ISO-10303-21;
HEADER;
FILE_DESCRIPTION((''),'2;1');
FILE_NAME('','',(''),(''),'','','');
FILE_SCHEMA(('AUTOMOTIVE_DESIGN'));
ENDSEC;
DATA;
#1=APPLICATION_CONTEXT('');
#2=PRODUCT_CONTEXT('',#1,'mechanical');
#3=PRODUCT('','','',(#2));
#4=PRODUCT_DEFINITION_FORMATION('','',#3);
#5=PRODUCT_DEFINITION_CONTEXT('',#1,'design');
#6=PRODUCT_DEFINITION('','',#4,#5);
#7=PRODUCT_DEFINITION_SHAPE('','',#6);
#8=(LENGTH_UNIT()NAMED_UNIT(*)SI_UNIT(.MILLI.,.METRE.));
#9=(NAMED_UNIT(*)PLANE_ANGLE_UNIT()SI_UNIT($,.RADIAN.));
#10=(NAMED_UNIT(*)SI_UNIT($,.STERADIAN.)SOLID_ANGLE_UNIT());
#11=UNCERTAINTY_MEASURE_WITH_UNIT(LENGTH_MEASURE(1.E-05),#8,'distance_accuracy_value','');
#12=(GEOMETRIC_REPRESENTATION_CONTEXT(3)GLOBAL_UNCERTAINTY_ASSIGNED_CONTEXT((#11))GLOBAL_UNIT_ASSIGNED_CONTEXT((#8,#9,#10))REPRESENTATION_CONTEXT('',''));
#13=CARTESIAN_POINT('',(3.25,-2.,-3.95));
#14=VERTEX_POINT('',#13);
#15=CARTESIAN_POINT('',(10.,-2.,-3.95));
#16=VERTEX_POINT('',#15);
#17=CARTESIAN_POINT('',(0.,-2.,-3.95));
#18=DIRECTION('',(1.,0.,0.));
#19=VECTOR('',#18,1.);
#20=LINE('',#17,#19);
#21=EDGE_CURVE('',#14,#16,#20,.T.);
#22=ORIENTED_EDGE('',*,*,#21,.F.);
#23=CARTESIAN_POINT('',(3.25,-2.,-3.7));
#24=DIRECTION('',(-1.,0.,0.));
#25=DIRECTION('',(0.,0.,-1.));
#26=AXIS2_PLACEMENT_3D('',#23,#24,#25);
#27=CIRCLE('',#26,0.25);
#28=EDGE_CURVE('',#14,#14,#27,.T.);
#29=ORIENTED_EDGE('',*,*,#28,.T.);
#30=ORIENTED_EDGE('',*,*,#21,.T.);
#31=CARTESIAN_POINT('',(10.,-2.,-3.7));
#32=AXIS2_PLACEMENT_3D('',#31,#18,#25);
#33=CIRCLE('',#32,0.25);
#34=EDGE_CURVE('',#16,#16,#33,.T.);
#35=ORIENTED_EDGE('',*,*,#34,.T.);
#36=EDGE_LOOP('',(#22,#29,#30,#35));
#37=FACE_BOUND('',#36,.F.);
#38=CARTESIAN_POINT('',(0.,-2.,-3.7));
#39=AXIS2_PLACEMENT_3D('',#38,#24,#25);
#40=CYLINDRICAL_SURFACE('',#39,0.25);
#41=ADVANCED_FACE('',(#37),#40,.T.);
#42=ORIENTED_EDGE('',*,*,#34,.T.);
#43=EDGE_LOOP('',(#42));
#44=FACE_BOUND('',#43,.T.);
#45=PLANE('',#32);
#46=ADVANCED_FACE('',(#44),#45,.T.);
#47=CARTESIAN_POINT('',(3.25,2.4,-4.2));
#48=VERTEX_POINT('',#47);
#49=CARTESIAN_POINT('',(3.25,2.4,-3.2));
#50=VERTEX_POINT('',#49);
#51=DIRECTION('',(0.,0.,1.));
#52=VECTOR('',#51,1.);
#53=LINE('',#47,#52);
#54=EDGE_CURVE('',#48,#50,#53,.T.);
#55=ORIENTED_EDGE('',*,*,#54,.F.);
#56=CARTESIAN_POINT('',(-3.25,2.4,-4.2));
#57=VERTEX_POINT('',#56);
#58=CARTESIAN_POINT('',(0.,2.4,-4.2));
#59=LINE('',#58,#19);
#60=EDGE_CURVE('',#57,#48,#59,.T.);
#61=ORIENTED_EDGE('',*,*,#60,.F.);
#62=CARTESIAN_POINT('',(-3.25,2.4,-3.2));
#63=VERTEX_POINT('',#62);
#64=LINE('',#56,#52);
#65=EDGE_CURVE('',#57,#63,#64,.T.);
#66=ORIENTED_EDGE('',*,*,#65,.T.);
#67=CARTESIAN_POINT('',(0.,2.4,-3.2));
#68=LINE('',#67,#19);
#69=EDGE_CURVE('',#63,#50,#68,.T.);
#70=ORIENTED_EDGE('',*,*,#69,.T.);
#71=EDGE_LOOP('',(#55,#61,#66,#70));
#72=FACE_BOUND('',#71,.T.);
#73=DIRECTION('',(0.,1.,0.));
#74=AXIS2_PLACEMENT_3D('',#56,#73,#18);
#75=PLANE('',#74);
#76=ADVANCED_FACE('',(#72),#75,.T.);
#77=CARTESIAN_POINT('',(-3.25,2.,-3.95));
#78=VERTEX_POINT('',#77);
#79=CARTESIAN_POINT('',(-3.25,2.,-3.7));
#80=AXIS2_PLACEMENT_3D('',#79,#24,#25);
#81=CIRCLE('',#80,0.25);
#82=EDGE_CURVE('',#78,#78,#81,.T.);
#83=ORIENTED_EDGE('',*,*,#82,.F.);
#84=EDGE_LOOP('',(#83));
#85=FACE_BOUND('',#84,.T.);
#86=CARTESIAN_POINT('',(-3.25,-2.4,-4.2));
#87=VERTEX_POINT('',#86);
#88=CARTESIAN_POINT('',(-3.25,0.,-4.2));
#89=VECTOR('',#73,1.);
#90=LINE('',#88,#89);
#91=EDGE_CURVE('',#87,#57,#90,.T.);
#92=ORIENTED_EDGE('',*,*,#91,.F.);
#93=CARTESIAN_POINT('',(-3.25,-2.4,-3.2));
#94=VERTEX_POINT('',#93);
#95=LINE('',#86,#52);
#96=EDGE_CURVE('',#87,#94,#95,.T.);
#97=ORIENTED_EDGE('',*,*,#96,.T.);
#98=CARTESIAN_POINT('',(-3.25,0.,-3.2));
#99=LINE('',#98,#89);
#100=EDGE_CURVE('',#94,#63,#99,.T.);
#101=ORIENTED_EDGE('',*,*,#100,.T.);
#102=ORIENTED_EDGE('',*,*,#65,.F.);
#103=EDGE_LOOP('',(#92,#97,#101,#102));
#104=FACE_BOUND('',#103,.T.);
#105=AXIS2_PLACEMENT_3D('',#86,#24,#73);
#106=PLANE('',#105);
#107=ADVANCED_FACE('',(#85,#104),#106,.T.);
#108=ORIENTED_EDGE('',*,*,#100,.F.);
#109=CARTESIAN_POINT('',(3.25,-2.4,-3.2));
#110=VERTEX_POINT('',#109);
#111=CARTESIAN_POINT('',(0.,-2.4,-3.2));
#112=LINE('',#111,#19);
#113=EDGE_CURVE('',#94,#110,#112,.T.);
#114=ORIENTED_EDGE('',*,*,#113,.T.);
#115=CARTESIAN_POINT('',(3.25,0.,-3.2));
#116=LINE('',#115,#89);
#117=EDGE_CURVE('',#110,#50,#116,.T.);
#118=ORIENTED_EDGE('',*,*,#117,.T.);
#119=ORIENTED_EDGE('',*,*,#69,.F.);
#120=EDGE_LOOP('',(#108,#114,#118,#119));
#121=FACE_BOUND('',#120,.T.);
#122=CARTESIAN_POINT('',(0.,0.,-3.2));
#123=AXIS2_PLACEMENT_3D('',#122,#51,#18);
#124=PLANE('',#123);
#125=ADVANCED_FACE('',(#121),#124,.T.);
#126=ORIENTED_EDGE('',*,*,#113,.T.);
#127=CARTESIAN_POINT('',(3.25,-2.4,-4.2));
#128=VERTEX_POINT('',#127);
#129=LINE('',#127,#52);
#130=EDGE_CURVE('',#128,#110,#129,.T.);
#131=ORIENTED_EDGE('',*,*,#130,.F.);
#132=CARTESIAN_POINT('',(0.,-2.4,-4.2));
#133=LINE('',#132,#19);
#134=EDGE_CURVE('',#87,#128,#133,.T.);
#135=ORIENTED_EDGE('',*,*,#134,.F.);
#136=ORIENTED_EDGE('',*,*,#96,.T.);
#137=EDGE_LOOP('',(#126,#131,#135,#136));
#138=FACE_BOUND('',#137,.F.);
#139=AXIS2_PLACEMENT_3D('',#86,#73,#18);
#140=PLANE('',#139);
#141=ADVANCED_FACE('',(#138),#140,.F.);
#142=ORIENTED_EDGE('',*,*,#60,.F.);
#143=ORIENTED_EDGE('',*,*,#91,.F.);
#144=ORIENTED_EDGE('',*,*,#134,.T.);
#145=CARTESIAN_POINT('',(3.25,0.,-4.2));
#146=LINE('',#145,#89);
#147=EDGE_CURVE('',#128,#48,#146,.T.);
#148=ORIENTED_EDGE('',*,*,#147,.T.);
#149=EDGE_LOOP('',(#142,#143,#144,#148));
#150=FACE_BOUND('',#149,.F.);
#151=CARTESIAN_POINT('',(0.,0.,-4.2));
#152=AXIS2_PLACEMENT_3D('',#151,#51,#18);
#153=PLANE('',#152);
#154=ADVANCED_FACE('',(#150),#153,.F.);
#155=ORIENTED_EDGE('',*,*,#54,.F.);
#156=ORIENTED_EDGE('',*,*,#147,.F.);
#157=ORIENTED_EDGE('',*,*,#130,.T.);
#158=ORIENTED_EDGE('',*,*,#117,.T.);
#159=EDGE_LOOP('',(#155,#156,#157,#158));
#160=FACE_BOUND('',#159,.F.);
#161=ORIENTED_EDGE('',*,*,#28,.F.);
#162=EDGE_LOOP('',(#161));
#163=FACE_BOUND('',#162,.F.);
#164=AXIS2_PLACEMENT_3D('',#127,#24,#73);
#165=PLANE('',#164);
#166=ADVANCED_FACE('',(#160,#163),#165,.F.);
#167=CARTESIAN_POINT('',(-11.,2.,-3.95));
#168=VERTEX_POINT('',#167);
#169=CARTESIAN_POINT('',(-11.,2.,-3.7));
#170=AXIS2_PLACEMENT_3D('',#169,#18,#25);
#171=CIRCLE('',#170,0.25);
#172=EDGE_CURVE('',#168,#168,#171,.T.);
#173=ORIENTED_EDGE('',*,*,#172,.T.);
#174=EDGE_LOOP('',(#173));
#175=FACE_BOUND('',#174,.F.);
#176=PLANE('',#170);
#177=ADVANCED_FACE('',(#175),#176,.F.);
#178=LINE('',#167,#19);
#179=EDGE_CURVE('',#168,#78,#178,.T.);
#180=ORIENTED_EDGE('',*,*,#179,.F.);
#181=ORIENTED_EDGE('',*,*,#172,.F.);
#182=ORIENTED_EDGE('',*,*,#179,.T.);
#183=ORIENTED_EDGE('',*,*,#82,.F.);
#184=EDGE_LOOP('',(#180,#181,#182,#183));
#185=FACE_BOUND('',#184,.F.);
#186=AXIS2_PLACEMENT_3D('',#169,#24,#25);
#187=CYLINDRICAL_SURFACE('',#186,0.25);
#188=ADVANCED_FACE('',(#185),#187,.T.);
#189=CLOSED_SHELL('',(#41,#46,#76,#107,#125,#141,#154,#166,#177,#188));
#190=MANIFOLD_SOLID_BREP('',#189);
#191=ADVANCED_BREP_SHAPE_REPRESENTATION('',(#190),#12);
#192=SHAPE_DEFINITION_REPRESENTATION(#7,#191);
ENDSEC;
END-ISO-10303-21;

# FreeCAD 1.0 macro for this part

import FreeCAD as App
import Part
import Sketcher

V = App.Vector


def add_polygon(sketch, points):
    """Adds a closed chain of lines whose ends are joined by coincident constraints."""
    first, n = sketch.GeometryCount, len(points)
    for a, b in zip(points, points[1:] + points[:1]):
        sketch.addGeometry(Part.LineSegment(App.Vector(*a, 0), App.Vector(*b, 0)), False)
    for i in range(n):
        sketch.addConstraint(Sketcher.Constraint("Coincident", first + i, 2, first + (i + 1) % n, 1))

doc = App.newDocument("Part")
params = doc.addObject("Spreadsheet::Sheet", "Params")
for row, (alias, value) in enumerate([
    ("sketch1_diameter", "0.5 mm"),
    ("pad1_length", "10 mm"),
    ("sketch2_diameter", "0.5 mm"),
    ("pad2_length", "10 mm"),
    ("sketch3_width", "6.5 mm"),
    ("sketch3_height", "4.8 mm"),
    ("pad3_length", "1 mm"),
], start=1):
    params.set(f"A{row}", alias)
    params.set(f"B{row}", "=" + value)
    params.setAlias(f"B{row}", alias)

body = doc.addObject("PartDesign::Body", "Body")

sketch1 = body.newObject("Sketcher::SketchObject", "Sketch")
sketch1.AttachmentSupport = (doc.getObject("XY_Plane"), [""])
sketch1.MapMode = "FlatFace"
sketch1.addGeometry(Part.Circle(V(0, 0, 0), V(0, 0, 1), 0.25), False)
sketch1.addConstraint(Sketcher.Constraint("Coincident", 0, 3, -1, 1))
sketch1.addConstraint(Sketcher.Constraint("Diameter", 0, 0.5))
sketch1.setExpression("Constraints[1]", "Params.sketch1_diameter")
pad1 = body.newObject("PartDesign::Pad", "Pad")
pad1.Profile = sketch1
pad1.setExpression("Length", "Params.pad1_length")
body2 = doc.addObject("PartDesign::Body", "Body001")
doc.recompute()

body.Placement = App.Placement(V(0, 0, 0), App.Rotation(V(0, 1, 0), 90))
boolean = body2.newObject("PartDesign::Boolean", "Boolean")
boolean.Type = "Fuse"
boolean.addObjects([body])
body3 = doc.addObject("PartDesign::Body", "Body002")
doc.recompute()

body2.Placement = App.Placement(V(0, -2, -3.7), App.Rotation(V(0, 0, 1), 0))
boolean2 = body3.newObject("PartDesign::Boolean", "Boolean001")
boolean2.Type = "Fuse"
boolean2.addObjects([body2])
body4 = doc.addObject("PartDesign::Body", "Body003")

sketch2 = body4.newObject("Sketcher::SketchObject", "Sketch001")
sketch2.AttachmentSupport = (doc.getObject("XY_Plane003"), [""])
sketch2.MapMode = "FlatFace"
sketch2.addGeometry(Part.Circle(V(0, 0, 0), V(0, 0, 1), 0.25), False)
sketch2.addConstraint(Sketcher.Constraint("Coincident", 0, 3, -1, 1))
sketch2.addConstraint(Sketcher.Constraint("Diameter", 0, 0.5))
sketch2.setExpression("Constraints[1]", "Params.sketch2_diameter")
pad2 = body4.newObject("PartDesign::Pad", "Pad001")
pad2.Profile = sketch2
pad2.setExpression("Length", "Params.pad2_length")
body5 = doc.addObject("PartDesign::Body", "Body004")
doc.recompute()

body4.Placement = App.Placement(V(0, 0, 0), App.Rotation(V(0, 1, 0), 90))
boolean3 = body5.newObject("PartDesign::Boolean", "Boolean002")
boolean3.Type = "Fuse"
boolean3.addObjects([body4])
body6 = doc.addObject("PartDesign::Body", "Body005")
body6.AllowCompound = True
doc.recompute()

body5.Placement = App.Placement(V(-11, 2, -3.7), App.Rotation(V(0, 0, 1), 0))
boolean4 = body6.newObject("PartDesign::Boolean", "Boolean003")
boolean4.Type = "Fuse"
boolean4.addObjects([body5])
doc.recompute()

boolean5 = body6.newObject("PartDesign::Boolean", "Boolean004")
boolean5.Type = "Fuse"
boolean5.addObjects([body3])
body7 = doc.addObject("PartDesign::Body", "Body006")

sketch3 = body7.newObject("Sketcher::SketchObject", "Sketch002")
sketch3.AttachmentSupport = (doc.getObject("XY_Plane006"), [""])
sketch3.MapMode = "FlatFace"
sketch3.AttachmentOffset = App.Placement(V(0, 0, -4.2), App.Rotation())
add_polygon(sketch3, [(-3.2, 2.4), (-3.2, -2.4), (3.2, -2.4), (3.2, 2.4)])
sketch3.addConstraint(Sketcher.Constraint("Vertical", 0))
sketch3.addConstraint(Sketcher.Constraint("Horizontal", 1))
sketch3.addConstraint(Sketcher.Constraint("Vertical", 2))
sketch3.addConstraint(Sketcher.Constraint("Horizontal", 3))
sketch3.addConstraint(Sketcher.Constraint("Symmetric", 0, 2, 2, 2, -1, 1))
sketch3.addConstraint(Sketcher.Constraint("DistanceX", 1, 1, 1, 2, 6.5))
sketch3.addConstraint(Sketcher.Constraint("DistanceY", 0, 2, 0, 1, 4.8))
sketch3.setExpression("Constraints[9]", "Params.sketch3_width")
sketch3.setExpression("Constraints[10]", "Params.sketch3_height")
pad3 = body7.newObject("PartDesign::Pad", "Pad002")
pad3.Profile = sketch3
pad3.setExpression("Length", "Params.pad3_length")
doc.recompute()

boolean6 = body7.newObject("PartDesign::Boolean", "Boolean005")
boolean6.Type = "Fuse"
boolean6.addObjects([body6])

doc.recompute()
